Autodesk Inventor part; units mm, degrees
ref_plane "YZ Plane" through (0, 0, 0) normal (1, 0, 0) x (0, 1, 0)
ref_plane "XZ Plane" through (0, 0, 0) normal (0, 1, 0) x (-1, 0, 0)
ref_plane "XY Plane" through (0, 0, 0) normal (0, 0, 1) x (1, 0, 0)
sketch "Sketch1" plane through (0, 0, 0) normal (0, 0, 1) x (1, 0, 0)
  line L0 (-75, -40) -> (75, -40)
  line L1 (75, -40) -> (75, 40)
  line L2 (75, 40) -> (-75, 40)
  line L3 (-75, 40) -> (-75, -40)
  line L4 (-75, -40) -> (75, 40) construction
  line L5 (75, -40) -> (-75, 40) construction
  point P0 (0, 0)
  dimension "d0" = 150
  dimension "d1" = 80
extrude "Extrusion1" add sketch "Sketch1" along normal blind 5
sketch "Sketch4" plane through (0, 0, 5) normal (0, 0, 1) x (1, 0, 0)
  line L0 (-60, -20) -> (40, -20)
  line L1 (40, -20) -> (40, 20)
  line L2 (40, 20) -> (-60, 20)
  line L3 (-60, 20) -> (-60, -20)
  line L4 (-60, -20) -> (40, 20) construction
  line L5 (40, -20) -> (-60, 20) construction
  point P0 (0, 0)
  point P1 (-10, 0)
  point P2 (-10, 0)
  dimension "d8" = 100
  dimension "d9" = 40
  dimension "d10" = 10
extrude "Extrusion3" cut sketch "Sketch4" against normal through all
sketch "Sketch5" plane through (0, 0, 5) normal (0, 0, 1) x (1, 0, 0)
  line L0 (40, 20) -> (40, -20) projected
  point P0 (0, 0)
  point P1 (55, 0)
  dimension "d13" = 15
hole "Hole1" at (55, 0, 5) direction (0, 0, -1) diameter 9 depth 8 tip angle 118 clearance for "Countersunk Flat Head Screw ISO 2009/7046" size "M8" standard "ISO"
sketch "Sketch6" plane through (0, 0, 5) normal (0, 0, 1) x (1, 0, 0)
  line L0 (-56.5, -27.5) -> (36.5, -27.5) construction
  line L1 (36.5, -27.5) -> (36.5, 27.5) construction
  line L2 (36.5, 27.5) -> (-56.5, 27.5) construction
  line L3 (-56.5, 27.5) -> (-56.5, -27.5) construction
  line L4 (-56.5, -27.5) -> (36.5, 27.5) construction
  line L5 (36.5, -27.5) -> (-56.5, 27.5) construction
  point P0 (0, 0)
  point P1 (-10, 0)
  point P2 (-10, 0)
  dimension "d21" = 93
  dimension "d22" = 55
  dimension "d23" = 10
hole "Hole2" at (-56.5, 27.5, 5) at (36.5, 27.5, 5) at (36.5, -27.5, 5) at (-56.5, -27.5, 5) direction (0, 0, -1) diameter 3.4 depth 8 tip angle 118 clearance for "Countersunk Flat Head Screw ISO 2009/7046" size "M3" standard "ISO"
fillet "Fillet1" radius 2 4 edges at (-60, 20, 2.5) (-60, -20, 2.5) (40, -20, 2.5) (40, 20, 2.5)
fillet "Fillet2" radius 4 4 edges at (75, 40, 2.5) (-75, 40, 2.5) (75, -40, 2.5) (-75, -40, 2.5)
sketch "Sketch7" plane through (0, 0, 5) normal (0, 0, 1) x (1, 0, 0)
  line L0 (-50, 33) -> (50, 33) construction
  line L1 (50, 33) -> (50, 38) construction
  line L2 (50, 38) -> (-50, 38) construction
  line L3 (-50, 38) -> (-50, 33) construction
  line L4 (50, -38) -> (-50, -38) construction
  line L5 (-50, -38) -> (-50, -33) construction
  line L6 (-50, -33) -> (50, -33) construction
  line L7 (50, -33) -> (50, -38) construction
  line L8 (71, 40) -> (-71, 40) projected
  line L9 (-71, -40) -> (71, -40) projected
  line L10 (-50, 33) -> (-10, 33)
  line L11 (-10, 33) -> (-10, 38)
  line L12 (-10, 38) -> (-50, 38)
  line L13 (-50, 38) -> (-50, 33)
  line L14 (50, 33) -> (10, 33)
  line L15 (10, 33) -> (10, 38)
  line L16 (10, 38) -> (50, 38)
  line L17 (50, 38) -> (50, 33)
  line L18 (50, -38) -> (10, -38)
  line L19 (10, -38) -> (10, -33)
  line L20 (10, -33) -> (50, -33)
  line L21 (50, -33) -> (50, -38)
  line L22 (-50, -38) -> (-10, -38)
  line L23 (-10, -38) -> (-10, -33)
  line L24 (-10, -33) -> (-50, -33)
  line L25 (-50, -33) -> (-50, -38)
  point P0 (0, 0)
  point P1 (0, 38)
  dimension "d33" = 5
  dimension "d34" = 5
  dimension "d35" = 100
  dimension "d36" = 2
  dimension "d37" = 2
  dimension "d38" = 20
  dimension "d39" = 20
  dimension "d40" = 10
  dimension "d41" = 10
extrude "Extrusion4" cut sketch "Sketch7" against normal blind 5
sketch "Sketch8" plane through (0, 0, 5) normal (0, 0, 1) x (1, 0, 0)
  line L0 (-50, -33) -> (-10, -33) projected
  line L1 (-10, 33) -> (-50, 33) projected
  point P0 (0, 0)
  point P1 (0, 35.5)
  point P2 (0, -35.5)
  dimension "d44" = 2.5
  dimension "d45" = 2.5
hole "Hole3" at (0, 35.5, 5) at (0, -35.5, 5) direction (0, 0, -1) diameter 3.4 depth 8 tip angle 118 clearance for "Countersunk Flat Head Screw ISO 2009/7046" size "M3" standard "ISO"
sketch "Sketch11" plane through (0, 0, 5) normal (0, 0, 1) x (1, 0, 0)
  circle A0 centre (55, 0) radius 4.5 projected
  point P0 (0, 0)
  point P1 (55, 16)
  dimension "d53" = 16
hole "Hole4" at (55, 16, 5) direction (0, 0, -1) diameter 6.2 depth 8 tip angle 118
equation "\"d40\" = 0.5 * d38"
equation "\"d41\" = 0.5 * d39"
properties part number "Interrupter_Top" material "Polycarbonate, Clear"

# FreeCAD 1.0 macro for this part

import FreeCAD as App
import Part
import Sketcher

V = App.Vector


def edges_at(feature, points):
    """Names of the edges that pass closest to the given points."""
    edges = feature.Shape.Edges
    near = lambda p: min(range(len(edges)), key=lambda i: edges[i].distToShape(Part.Vertex(*p))[0])
    return sorted({f"Edge{near(p) + 1}" for p in points})

doc = App.newDocument("Part")
body = doc.addObject("PartDesign::Body", "Body")

sketch1 = doc.addObject("Sketcher::SketchObject", "Sketch")
body.addObject(sketch1)
sketch1.AttachmentSupport = (doc.XY_Plane, [""])
sketch1.MapMode = "FlatFace"
sketch1.addGeometry(Part.LineSegment(V(-75, 40, 0), V(-75, -40, 0)), False)
sketch1.addGeometry(Part.LineSegment(V(-75, -40, 0), V(75, -40, 0)), False)
sketch1.addGeometry(Part.LineSegment(V(75, -40, 0), V(75, 40, 0)), False)
sketch1.addGeometry(Part.LineSegment(V(75, 40, 0), V(-75, 40, 0)), False)
sketch1.addConstraint(Sketcher.Constraint("Coincident", 0, 2, 1, 1))
sketch1.addConstraint(Sketcher.Constraint("Coincident", 1, 2, 2, 1))
sketch1.addConstraint(Sketcher.Constraint("Coincident", 2, 2, 3, 1))
sketch1.addConstraint(Sketcher.Constraint("Coincident", 3, 2, 0, 1))
sketch1.addConstraint(Sketcher.Constraint("Vertical", 0))
sketch1.addConstraint(Sketcher.Constraint("Horizontal", 1))
sketch1.addConstraint(Sketcher.Constraint("Vertical", 2))
sketch1.addConstraint(Sketcher.Constraint("Horizontal", 3))
sketch1.addConstraint(Sketcher.Constraint("Symmetric", 0, 2, 2, 2, -1, 1))
sketch1.addConstraint(Sketcher.Constraint("DistanceX", 1, 1, 1, 2, 150.0))
sketch1.addConstraint(Sketcher.Constraint("DistanceY", 0, 2, 0, 1, 80.0))
pad1 = doc.addObject("PartDesign::Pad", "Pad")
body.addObject(pad1)
pad1.Profile = sketch1
pad1.Length = 5

sketch2 = doc.addObject("Sketcher::SketchObject", "Sketch001")
body.addObject(sketch2)
sketch2.AttachmentSupport = (doc.XY_Plane, [""])
sketch2.MapMode = "FlatFace"
sketch2.AttachmentOffset = App.Placement(V(0, 0, 5), App.Rotation())
sketch2.addGeometry(Part.LineSegment(V(-60, 20, 0), V(-60, -20, 0)), False)
sketch2.addGeometry(Part.LineSegment(V(-60, -20, 0), V(40, -20, 0)), False)
sketch2.addGeometry(Part.LineSegment(V(40, -20, 0), V(40, 20, 0)), False)
sketch2.addGeometry(Part.LineSegment(V(40, 20, 0), V(-60, 20, 0)), False)
sketch2.addConstraint(Sketcher.Constraint("Coincident", 0, 2, 1, 1))
sketch2.addConstraint(Sketcher.Constraint("Coincident", 1, 2, 2, 1))
sketch2.addConstraint(Sketcher.Constraint("Coincident", 2, 2, 3, 1))
sketch2.addConstraint(Sketcher.Constraint("Coincident", 3, 2, 0, 1))
sketch2.addConstraint(Sketcher.Constraint("Vertical", 0))
sketch2.addConstraint(Sketcher.Constraint("Horizontal", 1))
sketch2.addConstraint(Sketcher.Constraint("Vertical", 2))
sketch2.addConstraint(Sketcher.Constraint("Horizontal", 3))
sketch2.addConstraint(Sketcher.Constraint("DistanceX", 1, 1, 1, 2, 100.0))
sketch2.addConstraint(Sketcher.Constraint("DistanceY", 0, 2, 0, 1, 40.0))
sketch2.addConstraint(Sketcher.Constraint("DistanceX", -1, 1, 1, 2, 40.0))
sketch2.addConstraint(Sketcher.Constraint("DistanceY", 0, 2, -1, 1, 20.0))
pocket1 = doc.addObject("PartDesign::Pocket", "Pocket")
body.addObject(pocket1)
pocket1.Profile = sketch2
pocket1.Type = "ThroughAll"

sketch3 = doc.addObject("Sketcher::SketchObject", "Sketch002")
body.addObject(sketch3)
sketch3.AttachmentSupport = (doc.XY_Plane, [""])
sketch3.MapMode = "FlatFace"
sketch3.AttachmentOffset = App.Placement(V(0, 0, 5), App.Rotation())
sketch3.addGeometry(Part.Circle(V(55, 0, 0), V(0, 0, 1), 4.5), False)
sketch3.addConstraint(Sketcher.Constraint("PointOnObject", 0, 3, -1))
sketch3.addConstraint(Sketcher.Constraint("Diameter", 0, 9.0))
sketch3.addConstraint(Sketcher.Constraint("DistanceX", -1, 1, 0, 3, 55.0))
doc.recompute()
hole = doc.addObject("PartDesign::Hole", "Hole")
body.addObject(hole)
hole.Profile = sketch3
hole.ThreadType = "None"
hole.Diameter = 9
hole.DepthType = "Dimension"
hole.Depth = 8
hole.DrillPoint = "Angled"
hole.DrillPointAngle = 118

sketch4 = doc.addObject("Sketcher::SketchObject", "Sketch003")
body.addObject(sketch4)
sketch4.AttachmentSupport = (doc.XY_Plane, [""])
sketch4.MapMode = "FlatFace"
sketch4.AttachmentOffset = App.Placement(V(0, 0, 5), App.Rotation())
sketch4.addGeometry(Part.Circle(V(-56.5, 27.5, 0), V(0, 0, 1), 1.7), False)
sketch4.addGeometry(Part.Circle(V(36.5, 27.5, 0), V(0, 0, 1), 1.7), False)
sketch4.addGeometry(Part.Circle(V(36.5, -27.5, 0), V(0, 0, 1), 1.7), False)
sketch4.addGeometry(Part.Circle(V(-56.5, -27.5, 0), V(0, 0, 1), 1.7), False)
sketch4.addConstraint(Sketcher.Constraint("Equal", 0, 1))
sketch4.addConstraint(Sketcher.Constraint("Equal", 1, 2))
sketch4.addConstraint(Sketcher.Constraint("Equal", 2, 3))
sketch4.addConstraint(Sketcher.Constraint("Symmetric", 1, 3, 2, 3, -1))
sketch4.addConstraint(Sketcher.Constraint("Symmetric", 0, 3, 3, 3, -1))
sketch4.addConstraint(Sketcher.Constraint("Horizontal", 0, 3, 1, 3))
sketch4.addConstraint(Sketcher.Constraint("Diameter", 0, 3.4))
sketch4.addConstraint(Sketcher.Constraint("DistanceX", 0, 3, 1, 3, 93.0))
sketch4.addConstraint(Sketcher.Constraint("DistanceY", 2, 3, 1, 3, 55.0))
sketch4.addConstraint(Sketcher.Constraint("DistanceX", 0, 3, -1, 1, 56.5))
doc.recompute()
hole2 = doc.addObject("PartDesign::Hole", "Hole001")
body.addObject(hole2)
hole2.Profile = sketch4
hole2.ThreadType = "None"
hole2.Diameter = 3.4
hole2.DepthType = "Dimension"
hole2.Depth = 8
hole2.DrillPoint = "Angled"
hole2.DrillPointAngle = 118
doc.recompute()

fillet = doc.addObject("PartDesign::Fillet", "Fillet")
body.addObject(fillet)
fillet.Base = (hole2, edges_at(hole2, [
    (-60, 20, 2.5),
    (-60, -20, 2.5),
    (40, -20, 2.5),
    (40, 20, 2.5),
]))
fillet.Radius = 2
doc.recompute()

fillet2 = doc.addObject("PartDesign::Fillet", "Fillet001")
body.addObject(fillet2)
fillet2.Base = (fillet, edges_at(fillet, [
    (75, 40, 2.5),
    (-75, 40, 2.5),
    (75, -40, 2.5),
    (-75, -40, 2.5),
]))
fillet2.Radius = 4

sketch5 = doc.addObject("Sketcher::SketchObject", "Sketch004")
body.addObject(sketch5)
sketch5.AttachmentSupport = (doc.XY_Plane, [""])
sketch5.MapMode = "FlatFace"
sketch5.AttachmentOffset = App.Placement(V(0, 0, 5), App.Rotation())
sketch5.addGeometry(Part.LineSegment(V(-50, 38, 0), V(-50, 33, 0)), False)
sketch5.addGeometry(Part.LineSegment(V(-50, 33, 0), V(-10, 33, 0)), False)
sketch5.addGeometry(Part.LineSegment(V(-10, 33, 0), V(-10, 38, 0)), False)
sketch5.addGeometry(Part.LineSegment(V(-10, 38, 0), V(-50, 38, 0)), False)
sketch5.addGeometry(Part.LineSegment(V(10, 33, 0), V(50, 33, 0)), False)
sketch5.addGeometry(Part.LineSegment(V(50, 33, 0), V(50, 38, 0)), False)
sketch5.addGeometry(Part.LineSegment(V(50, 38, 0), V(10, 38, 0)), False)
sketch5.addGeometry(Part.LineSegment(V(10, 38, 0), V(10, 33, 0)), False)
sketch5.addGeometry(Part.LineSegment(V(10, -38, 0), V(50, -38, 0)), False)
sketch5.addGeometry(Part.LineSegment(V(50, -38, 0), V(50, -33, 0)), False)
sketch5.addGeometry(Part.LineSegment(V(50, -33, 0), V(10, -33, 0)), False)
sketch5.addGeometry(Part.LineSegment(V(10, -33, 0), V(10, -38, 0)), False)
sketch5.addGeometry(Part.LineSegment(V(-50, -33, 0), V(-50, -38, 0)), False)
sketch5.addGeometry(Part.LineSegment(V(-50, -38, 0), V(-10, -38, 0)), False)
sketch5.addGeometry(Part.LineSegment(V(-10, -38, 0), V(-10, -33, 0)), False)
sketch5.addGeometry(Part.LineSegment(V(-10, -33, 0), V(-50, -33, 0)), False)
sketch5.addConstraint(Sketcher.Constraint("Coincident", 0, 2, 1, 1))
sketch5.addConstraint(Sketcher.Constraint("Coincident", 1, 2, 2, 1))
sketch5.addConstraint(Sketcher.Constraint("Coincident", 2, 2, 3, 1))
sketch5.addConstraint(Sketcher.Constraint("Coincident", 3, 2, 0, 1))
sketch5.addConstraint(Sketcher.Constraint("Coincident", 4, 2, 5, 1))
sketch5.addConstraint(Sketcher.Constraint("Coincident", 5, 2, 6, 1))
sketch5.addConstraint(Sketcher.Constraint("Coincident", 6, 2, 7, 1))
sketch5.addConstraint(Sketcher.Constraint("Coincident", 7, 2, 4, 1))
sketch5.addConstraint(Sketcher.Constraint("Coincident", 8, 2, 9, 1))
sketch5.addConstraint(Sketcher.Constraint("Coincident", 9, 2, 10, 1))
sketch5.addConstraint(Sketcher.Constraint("Coincident", 10, 2, 11, 1))
sketch5.addConstraint(Sketcher.Constraint("Coincident", 11, 2, 8, 1))
sketch5.addConstraint(Sketcher.Constraint("Coincident", 12, 2, 13, 1))
sketch5.addConstraint(Sketcher.Constraint("Coincident", 13, 2, 14, 1))
sketch5.addConstraint(Sketcher.Constraint("Coincident", 14, 2, 15, 1))
sketch5.addConstraint(Sketcher.Constraint("Coincident", 15, 2, 12, 1))
sketch5.addConstraint(Sketcher.Constraint("Vertical", 0))
sketch5.addConstraint(Sketcher.Constraint("Horizontal", 1))
sketch5.addConstraint(Sketcher.Constraint("Vertical", 2))
sketch5.addConstraint(Sketcher.Constraint("Horizontal", 3))
sketch5.addConstraint(Sketcher.Constraint("Horizontal", 4))
sketch5.addConstraint(Sketcher.Constraint("Vertical", 5))
sketch5.addConstraint(Sketcher.Constraint("Horizontal", 6))
sketch5.addConstraint(Sketcher.Constraint("Vertical", 7))
sketch5.addConstraint(Sketcher.Constraint("Horizontal", 8))
sketch5.addConstraint(Sketcher.Constraint("Vertical", 9))
sketch5.addConstraint(Sketcher.Constraint("Horizontal", 10))
sketch5.addConstraint(Sketcher.Constraint("Vertical", 11))
sketch5.addConstraint(Sketcher.Constraint("Vertical", 12))
sketch5.addConstraint(Sketcher.Constraint("Horizontal", 13))
sketch5.addConstraint(Sketcher.Constraint("Vertical", 14))
sketch5.addConstraint(Sketcher.Constraint("Horizontal", 15))
sketch5.addConstraint(Sketcher.Constraint("Symmetric", 3, 2, 8, 2, -1, 1))
sketch5.addConstraint(Sketcher.Constraint("Symmetric", 1, 2, 10, 2, -1, 1))
sketch5.addConstraint(Sketcher.Constraint("Symmetric", 5, 2, 12, 2, -1, 1))
sketch5.addConstraint(Sketcher.Constraint("Symmetric", 7, 2, 14, 2, -1, 1))
sketch5.addConstraint(Sketcher.Constraint("Symmetric", 0, 2, 4, 2, -2))
sketch5.addConstraint(Sketcher.Constraint("Symmetric", 2, 2, 6, 2, -2))
sketch5.addConstraint(Sketcher.Constraint("DistanceY", 0, 2, 0, 1, 5.0))
sketch5.addConstraint(Sketcher.Constraint("DistanceX", 1, 2, -1, 1, 10.0))
sketch5.addConstraint(Sketcher.Constraint("DistanceX", 0, 2, 4, 2, 100.0))
sketch5.addConstraint(Sketcher.Constraint("DistanceY", -1, 1, 0, 2, 33.0))
pocket2 = doc.addObject("PartDesign::Pocket", "Pocket001")
body.addObject(pocket2)
pocket2.Profile = sketch5
pocket2.Length = 5

sketch6 = doc.addObject("Sketcher::SketchObject", "Sketch005")
body.addObject(sketch6)
sketch6.AttachmentSupport = (doc.XY_Plane, [""])
sketch6.MapMode = "FlatFace"
sketch6.AttachmentOffset = App.Placement(V(0, 0, 5), App.Rotation())
sketch6.addGeometry(Part.Circle(V(0, 35.5, 0), V(0, 0, 1), 1.7), False)
sketch6.addGeometry(Part.Circle(V(0, -35.5, 0), V(0, 0, 1), 1.7), False)
sketch6.addConstraint(Sketcher.Constraint("Equal", 0, 1))
sketch6.addConstraint(Sketcher.Constraint("Symmetric", 0, 3, 1, 3, -1, 1))
sketch6.addConstraint(Sketcher.Constraint("PointOnObject", 0, 3, -2))
sketch6.addConstraint(Sketcher.Constraint("Diameter", 0, 3.4))
sketch6.addConstraint(Sketcher.Constraint("DistanceY", 1, 3, 0, 3, 71.0))
doc.recompute()
hole3 = doc.addObject("PartDesign::Hole", "Hole002")
body.addObject(hole3)
hole3.Profile = sketch6
hole3.ThreadType = "None"
hole3.Diameter = 3.4
hole3.DepthType = "Dimension"
hole3.Depth = 8
hole3.DrillPoint = "Angled"
hole3.DrillPointAngle = 118

sketch7 = doc.addObject("Sketcher::SketchObject", "Sketch006")
body.addObject(sketch7)
sketch7.AttachmentSupport = (doc.XY_Plane, [""])
sketch7.MapMode = "FlatFace"
sketch7.AttachmentOffset = App.Placement(V(0, 0, 5), App.Rotation())
sketch7.addGeometry(Part.Circle(V(55, 16, 0), V(0, 0, 1), 3.1), False)
sketch7.addConstraint(Sketcher.Constraint("Diameter", 0, 6.2))
sketch7.addConstraint(Sketcher.Constraint("DistanceX", -1, 1, 0, 3, 55.0))
sketch7.addConstraint(Sketcher.Constraint("DistanceY", -1, 1, 0, 3, 16.0))
doc.recompute()
hole4 = doc.addObject("PartDesign::Hole", "Hole003")
body.addObject(hole4)
hole4.Profile = sketch7
hole4.ThreadType = "None"
hole4.Diameter = 6.2
hole4.DepthType = "Dimension"
hole4.Depth = 8
hole4.DrillPoint = "Angled"
hole4.DrillPointAngle = 118

doc.recompute()
